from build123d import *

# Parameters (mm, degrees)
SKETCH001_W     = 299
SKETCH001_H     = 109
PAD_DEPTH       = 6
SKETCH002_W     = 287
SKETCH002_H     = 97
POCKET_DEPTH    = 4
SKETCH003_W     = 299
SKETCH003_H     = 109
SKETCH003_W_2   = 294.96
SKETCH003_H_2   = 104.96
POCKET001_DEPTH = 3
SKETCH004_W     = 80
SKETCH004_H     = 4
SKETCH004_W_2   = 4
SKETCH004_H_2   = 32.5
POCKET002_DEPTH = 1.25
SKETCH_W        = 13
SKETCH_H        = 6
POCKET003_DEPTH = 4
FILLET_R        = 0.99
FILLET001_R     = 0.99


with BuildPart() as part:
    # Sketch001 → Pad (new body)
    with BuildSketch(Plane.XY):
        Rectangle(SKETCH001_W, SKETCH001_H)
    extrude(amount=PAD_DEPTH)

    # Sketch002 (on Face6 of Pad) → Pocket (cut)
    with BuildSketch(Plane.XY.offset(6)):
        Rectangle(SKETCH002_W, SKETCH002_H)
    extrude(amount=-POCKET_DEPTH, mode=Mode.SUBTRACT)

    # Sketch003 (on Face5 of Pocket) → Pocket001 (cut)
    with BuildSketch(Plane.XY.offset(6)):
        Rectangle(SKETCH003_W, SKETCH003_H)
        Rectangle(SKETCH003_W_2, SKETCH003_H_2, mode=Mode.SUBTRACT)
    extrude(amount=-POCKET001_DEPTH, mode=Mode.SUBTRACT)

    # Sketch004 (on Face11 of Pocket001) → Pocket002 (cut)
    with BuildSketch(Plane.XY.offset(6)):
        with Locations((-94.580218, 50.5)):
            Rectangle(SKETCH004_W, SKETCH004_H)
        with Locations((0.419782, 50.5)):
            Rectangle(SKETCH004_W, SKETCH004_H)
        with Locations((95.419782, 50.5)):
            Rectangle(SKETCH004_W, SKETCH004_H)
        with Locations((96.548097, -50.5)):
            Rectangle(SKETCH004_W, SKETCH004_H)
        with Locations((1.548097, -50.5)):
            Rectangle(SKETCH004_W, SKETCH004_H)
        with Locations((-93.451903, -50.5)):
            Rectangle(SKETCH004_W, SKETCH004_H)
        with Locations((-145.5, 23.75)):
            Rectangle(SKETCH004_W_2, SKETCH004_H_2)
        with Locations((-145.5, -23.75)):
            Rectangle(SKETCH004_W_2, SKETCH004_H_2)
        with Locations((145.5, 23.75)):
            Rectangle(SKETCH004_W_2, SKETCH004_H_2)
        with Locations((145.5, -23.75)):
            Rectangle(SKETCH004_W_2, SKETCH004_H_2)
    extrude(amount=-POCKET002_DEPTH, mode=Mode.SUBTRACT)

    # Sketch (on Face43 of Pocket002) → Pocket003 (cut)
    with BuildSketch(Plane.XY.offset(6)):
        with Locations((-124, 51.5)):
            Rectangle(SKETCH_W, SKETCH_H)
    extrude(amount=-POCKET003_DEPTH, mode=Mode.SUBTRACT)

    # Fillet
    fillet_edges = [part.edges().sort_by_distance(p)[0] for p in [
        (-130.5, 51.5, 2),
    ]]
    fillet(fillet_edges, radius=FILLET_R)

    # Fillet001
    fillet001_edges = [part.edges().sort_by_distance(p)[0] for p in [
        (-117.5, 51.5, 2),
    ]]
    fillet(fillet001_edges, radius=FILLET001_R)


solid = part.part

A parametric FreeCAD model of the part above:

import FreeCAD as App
import Part
import Sketcher


def edges_at(feature, points):
    """Names of the edges that pass closest to the given points."""
    edges = feature.Shape.Edges
    near = lambda p: min(range(len(edges)), key=lambda i: edges[i].distToShape(Part.Vertex(*p))[0])
    return sorted({f"Edge{near(p) + 1}" for p in points})


def add_polygon(sketch, points):
    """Adds a closed chain of lines whose ends are joined by coincident constraints."""
    first, n = sketch.GeometryCount, len(points)
    for a, b in zip(points, points[1:] + points[:1]):
        sketch.addGeometry(Part.LineSegment(App.Vector(*a, 0), App.Vector(*b, 0)), False)
    for i in range(n):
        sketch.addConstraint(Sketcher.Constraint("Coincident", first + i, 2, first + (i + 1) % n, 1))

doc = App.newDocument("Part")
params = doc.addObject("Spreadsheet::Sheet", "Params")
for row, (alias, value) in enumerate([
    ("sketch1_width", "299 mm"),
    ("sketch1_height", "109 mm"),
    ("pad1_length", "6 mm"),
    ("sketch2_width", "287 mm"),
    ("sketch2_height", "97 mm"),
    ("pocket1_length", "4 mm"),
    ("sketch3_width", "299 mm"),
    ("sketch3_height", "109 mm"),
    ("sketch3_width2", "294.96 mm"),
    ("sketch3_height2", "104.96 mm"),
    ("pocket2_length", "3 mm"),
    ("sketch4_width", "80 mm"),
    ("sketch4_width2", "4 mm"),
    ("sketch4_height", "32.5 mm"),
    ("pocket3_length", "1.25 mm"),
    ("sketch5_width", "13 mm"),
    ("sketch5_height", "6 mm"),
    ("pocket4_length", "4 mm"),
    ("fillet_radius", "0.99 mm"),
    ("fillet2_radius", "0.99 mm"),
], start=1):
    params.set(f"A{row}", alias)
    params.set(f"B{row}", "=" + value)
    params.setAlias(f"B{row}", alias)

body = doc.addObject("PartDesign::Body", "Body")

sketch1 = body.newObject("Sketcher::SketchObject", "Sketch")
sketch1.AttachmentSupport = (doc.getObject("XY_Plane"), [""])
sketch1.MapMode = "FlatFace"
add_polygon(sketch1, [(-150, 54), (-150, -54), (150, -54), (150, 54)])
sketch1.addConstraint([
    Sketcher.Constraint("Vertical", 0),
    Sketcher.Constraint("Horizontal", 1),
    Sketcher.Constraint("Vertical", 2),
    Sketcher.Constraint("Horizontal", 3),
    Sketcher.Constraint("Symmetric", 0, 2, 2, 2, -1, 1),
    Sketcher.Constraint("DistanceX", 1, 1, 1, 2, 299.0),
    Sketcher.Constraint("DistanceY", 0, 2, 0, 1, 109.0),
])
sketch1.setExpression("Constraints[9]", "Params.sketch1_width")
sketch1.setExpression("Constraints[10]", "Params.sketch1_height")
pad1 = body.newObject("PartDesign::Pad", "Pad")
pad1.Profile = sketch1
pad1.setExpression("Length", "Params.pad1_length")

sketch2 = body.newObject("Sketcher::SketchObject", "Sketch001")
sketch2.AttachmentSupport = (doc.getObject("XY_Plane"), [""])
sketch2.MapMode = "FlatFace"
sketch2.AttachmentOffset = App.Placement(App.Vector(0, 0, 6), App.Rotation())
add_polygon(sketch2, [(-144, 48), (-144, -48), (144, -48), (144, 48)])
sketch2.addConstraint([
    Sketcher.Constraint("Vertical", 0),
    Sketcher.Constraint("Horizontal", 1),
    Sketcher.Constraint("Vertical", 2),
    Sketcher.Constraint("Horizontal", 3),
    Sketcher.Constraint("Symmetric", 0, 2, 2, 2, -1, 1),
    Sketcher.Constraint("DistanceX", 1, 1, 1, 2, 287.0),
    Sketcher.Constraint("DistanceY", 0, 2, 0, 1, 97.0),
])
sketch2.setExpression("Constraints[9]", "Params.sketch2_width")
sketch2.setExpression("Constraints[10]", "Params.sketch2_height")
pocket1 = body.newObject("PartDesign::Pocket", "Pocket")
pocket1.Profile = sketch2
pocket1.setExpression("Length", "Params.pocket1_length")

sketch3 = body.newObject("Sketcher::SketchObject", "Sketch002")
sketch3.AttachmentSupport = (doc.getObject("XY_Plane"), [""])
sketch3.MapMode = "FlatFace"
sketch3.AttachmentOffset = App.Placement(App.Vector(0, 0, 6), App.Rotation())
add_polygon(sketch3, [(-150, 54), (-150, -54), (150, -54), (150, 54)])
add_polygon(sketch3, [(147, -52), (-147, -52), (-147, 52), (147, 52)])
sketch3.addConstraint([
    Sketcher.Constraint("Vertical", 0),
    Sketcher.Constraint("Horizontal", 1),
    Sketcher.Constraint("Vertical", 2),
    Sketcher.Constraint("Horizontal", 3),
    Sketcher.Constraint("Horizontal", 4),
    Sketcher.Constraint("Vertical", 5),
    Sketcher.Constraint("Horizontal", 6),
    Sketcher.Constraint("Vertical", 7),
    Sketcher.Constraint("Symmetric", 0, 2, 2, 2, -1, 1),
    Sketcher.Constraint("Symmetric", 4, 2, 6, 2, -1, 1),
    Sketcher.Constraint("DistanceX", 1, 1, 1, 2, 299.0),
    Sketcher.Constraint("DistanceY", 0, 2, 0, 1, 109.0),
    Sketcher.Constraint("DistanceX", 4, 2, 4, 1, 294.96),
    Sketcher.Constraint("DistanceY", 5, 1, 5, 2, 104.96),
])
sketch3.setExpression("Constraints[18]", "Params.sketch3_width")
sketch3.setExpression("Constraints[19]", "Params.sketch3_height")
sketch3.setExpression("Constraints[20]", "Params.sketch3_width2")
sketch3.setExpression("Constraints[21]", "Params.sketch3_height2")
pocket2 = body.newObject("PartDesign::Pocket", "Pocket001")
pocket2.Profile = sketch3
pocket2.setExpression("Length", "Params.pocket2_length")

sketch4 = body.newObject("Sketcher::SketchObject", "Sketch003")
sketch4.AttachmentSupport = (doc.getObject("XY_Plane"), [""])
sketch4.MapMode = "FlatFace"
sketch4.AttachmentOffset = App.Placement(App.Vector(0, 0, 6), App.Rotation())
add_polygon(sketch4, [(-134.6, 52.5), (-134.6, 48.5), (-54.6, 48.5), (-54.6, 52.5)])
add_polygon(sketch4, [(-39.6, 52.5), (-39.6, 48.5), (40.4, 48.5), (40.4, 52.5)])
add_polygon(sketch4, [(55.4, 52.5), (55.4, 48.5), (135.4, 48.5), (135.4, 52.5)])
add_polygon(sketch4, [(56.5, -48.5), (56.5, -52.5), (136.5, -52.5), (136.5, -48.5)])
add_polygon(sketch4, [(-38.5, -48.5), (-38.5, -52.5), (41.5, -52.5), (41.5, -48.5)])
add_polygon(sketch4, [(-133.5, -48.5), (-133.5, -52.5), (-53.5, -52.5), (-53.5, -48.5)])
add_polygon(sketch4, [(-147.5, 40), (-147.5, 7.5), (-143.5, 7.5), (-143.5, 40)])
add_polygon(sketch4, [(-147.5, -7.5), (-147.5, -40), (-143.5, -40), (-143.5, -7.5)])
add_polygon(sketch4, [(143.5, 40), (143.5, 7.5), (147.5, 7.5), (147.5, 40)])
add_polygon(sketch4, [(143.5, -7.5), (143.5, -40), (147.5, -40), (147.5, -7.5)])
sketch4.addConstraint([
    Sketcher.Constraint("Vertical", 0),
    Sketcher.Constraint("Horizontal", 1),
    Sketcher.Constraint("Vertical", 2),
    Sketcher.Constraint("Horizontal", 3),
    Sketcher.Constraint("Vertical", 4),
    Sketcher.Constraint("Horizontal", 5),
    Sketcher.Constraint("Vertical", 6),
    Sketcher.Constraint("Horizontal", 7),
    Sketcher.Constraint("Vertical", 8),
    Sketcher.Constraint("Horizontal", 9),
    Sketcher.Constraint("Vertical", 10),
    Sketcher.Constraint("Horizontal", 11),
    Sketcher.Constraint("Vertical", 12),
    Sketcher.Constraint("Horizontal", 13),
    Sketcher.Constraint("Vertical", 14),
    Sketcher.Constraint("Horizontal", 15),
    Sketcher.Constraint("Vertical", 16),
    Sketcher.Constraint("Horizontal", 17),
    Sketcher.Constraint("Vertical", 18),
    Sketcher.Constraint("Horizontal", 19),
    Sketcher.Constraint("Vertical", 20),
    Sketcher.Constraint("Horizontal", 21),
    Sketcher.Constraint("Vertical", 22),
    Sketcher.Constraint("Horizontal", 23),
    Sketcher.Constraint("Vertical", 24),
    Sketcher.Constraint("Horizontal", 25),
    Sketcher.Constraint("Vertical", 26),
    Sketcher.Constraint("Horizontal", 27),
    Sketcher.Constraint("Vertical", 28),
    Sketcher.Constraint("Horizontal", 29),
    Sketcher.Constraint("Vertical", 30),
    Sketcher.Constraint("Horizontal", 31),
    Sketcher.Constraint("Vertical", 32),
    Sketcher.Constraint("Horizontal", 33),
    Sketcher.Constraint("Vertical", 34),
    Sketcher.Constraint("Horizontal", 35),
    Sketcher.Constraint("Vertical", 36),
    Sketcher.Constraint("Horizontal", 37),
    Sketcher.Constraint("Vertical", 38),
    Sketcher.Constraint("Horizontal", 39),
    Sketcher.Constraint("Symmetric", 30, 2, 32, 2, -1, 1),
    Sketcher.Constraint("Symmetric", 28, 2, 34, 2, -1, 1),
    Sketcher.Constraint("Symmetric", 26, 2, 36, 2, -1, 1),
    Sketcher.Constraint("Symmetric", 24, 2, 38, 2, -1, 1),
    Sketcher.Constraint("Symmetric", 25, 2, 32, 2, -2),
    Sketcher.Constraint("Symmetric", 27, 2, 34, 2, -2),
    Sketcher.Constraint("Horizontal", 1, 2, 4, 2),
    Sketcher.Constraint("Horizontal", 3, 2, 6, 2),
    Sketcher.Constraint("Horizontal", 5, 2, 8, 2),
    Sketcher.Constraint("Horizontal", 7, 2, 10, 2),
    Sketcher.Constraint("Horizontal", 13, 2, 16, 2),
    Sketcher.Constraint("Horizontal", 15, 2, 18, 2),
    Sketcher.Constraint("Horizontal", 17, 2, 20, 2),
    Sketcher.Constraint("Horizontal", 19, 2, 22, 2),
    Sketcher.Constraint("Equal", 3, 5),
    Sketcher.Constraint("Equal", 7, 9),
    Sketcher.Constraint("Equal", 11, 13),
    Sketcher.Constraint("Equal", 15, 17),
    Sketcher.Constraint("Equal", 19, 21),
    Sketcher.Constraint("Equal", 39, 0),
    Sketcher.Constraint("Equal", 10, 12),
    Sketcher.Constraint("DistanceX", 1, 1, 1, 2, 80.0),
    Sketcher.Constraint("DistanceX", 25, 1, 25, 2, 4.0),
    Sketcher.Constraint("DistanceY", 24, 2, 24, 1, 32.5),
    Sketcher.Constraint("DistanceY", -1, 1, 26, 2, 40.0),
    Sketcher.Constraint("DistanceX", 1, 2, 4, 2, 15.0),
    Sketcher.Constraint("DistanceX", 5, 2, 8, 2, 15.0),
    Sketcher.Constraint("DistanceY", 12, 2, 8, 2, 101.0),
    Sketcher.Constraint("DistanceX", 16, 2, 12, 2, 95.0),
    Sketcher.Constraint("DistanceX", 20, 2, 16, 2, 95.0),
    Sketcher.Constraint("DistanceY", 24, 2, 0, 2, 41.0),
    Sketcher.Constraint("DistanceX", 24, 2, -1, 1, 147.5),
    Sketcher.Constraint("DistanceX", 0, 2, -1, 1, 134.580218),
    Sketcher.Constraint("DistanceX", -1, 1, 12, 2, 56.548097),
])
sketch4.setExpression("Constraints[101]", "Params.sketch4_width")
sketch4.setExpression("Constraints[102]", "Params.sketch4_width2")
sketch4.setExpression("Constraints[103]", "Params.sketch4_height")
pocket3 = body.newObject("PartDesign::Pocket", "Pocket002")
pocket3.Profile = sketch4
pocket3.setExpression("Length", "Params.pocket3_length")

sketch5 = body.newObject("Sketcher::SketchObject", "Sketch004")
sketch5.AttachmentSupport = (doc.getObject("XY_Plane"), [""])
sketch5.MapMode = "FlatFace"
sketch5.AttachmentOffset = App.Placement(App.Vector(0, 0, 6), App.Rotation())
add_polygon(sketch5, [(-130, 54), (-130, 48), (-118, 48), (-118, 54)])
sketch5.addConstraint([
    Sketcher.Constraint("Vertical", 0),
    Sketcher.Constraint("Horizontal", 1),
    Sketcher.Constraint("Vertical", 2),
    Sketcher.Constraint("Horizontal", 3),
    Sketcher.Constraint("DistanceX", 1, 1, 1, 2, 13.0),
    Sketcher.Constraint("DistanceY", 0, 2, 0, 1, 6.0),
    Sketcher.Constraint("DistanceX", 0, 2, -1, 1, 130.5),
    Sketcher.Constraint("DistanceY", -1, 1, 0, 2, 48.5),
])
sketch5.setExpression("Constraints[8]", "Params.sketch5_width")
sketch5.setExpression("Constraints[9]", "Params.sketch5_height")
pocket4 = body.newObject("PartDesign::Pocket", "Pocket003")
pocket4.Profile = sketch5
pocket4.setExpression("Length", "Params.pocket4_length")
doc.recompute()

fillet = body.newObject("PartDesign::Fillet", "Fillet")
fillet.Base = (pocket4, edges_at(pocket4, [(-130.5, 51.5, 2)]))
fillet.setExpression("Radius", "Params.fillet_radius")
doc.recompute()

fillet2 = body.newObject("PartDesign::Fillet", "Fillet001")
fillet2.Base = (fillet, edges_at(fillet, [(-117.5, 51.5, 2)]))
fillet2.setExpression("Radius", "Params.fillet2_radius")

doc.recompute()
